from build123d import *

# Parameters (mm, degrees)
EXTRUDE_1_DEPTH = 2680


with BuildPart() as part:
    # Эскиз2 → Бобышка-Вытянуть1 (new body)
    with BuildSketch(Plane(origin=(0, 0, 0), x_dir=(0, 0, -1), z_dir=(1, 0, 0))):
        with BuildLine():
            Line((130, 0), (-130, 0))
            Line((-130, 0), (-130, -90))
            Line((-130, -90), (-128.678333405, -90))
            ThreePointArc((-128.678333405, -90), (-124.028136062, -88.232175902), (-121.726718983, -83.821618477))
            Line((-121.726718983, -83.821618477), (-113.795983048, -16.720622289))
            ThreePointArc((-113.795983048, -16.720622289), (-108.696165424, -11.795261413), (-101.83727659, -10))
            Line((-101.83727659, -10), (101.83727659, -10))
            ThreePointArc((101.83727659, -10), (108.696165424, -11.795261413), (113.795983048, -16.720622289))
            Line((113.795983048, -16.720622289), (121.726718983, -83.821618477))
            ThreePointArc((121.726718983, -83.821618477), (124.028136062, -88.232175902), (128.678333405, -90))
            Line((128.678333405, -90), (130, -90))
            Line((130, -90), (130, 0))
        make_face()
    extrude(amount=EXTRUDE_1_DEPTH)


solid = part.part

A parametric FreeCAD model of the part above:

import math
import FreeCAD as App
import Part
import Sketcher

V = App.Vector

doc = App.newDocument("Part")
body = doc.addObject("PartDesign::Body", "Body")

# Sketch on YZ plane
sketch1 = body.newObject("Sketcher::SketchObject", "Sketch")
sketch1.AttachmentSupport = (doc.getObject("YZ_Plane"), [""])
sketch1.MapMode = "FlatFace"
sketch1.addGeometry(Part.LineSegment(V(0, -130, 0), V(0, 130, 0)), False)
sketch1.addGeometry(Part.LineSegment(V(0, 130, 0), V(-90, 130, 0)), False)
sketch1.addGeometry(Part.LineSegment(V(-90, 130, 0), V(-90, 128.7, 0)), False)
sketch1.addGeometry(Part.ArcOfCircle(Part.Circle(V(-83, 128.7, 0), V(0, 0, 1), 7), math.radians(180), math.radians(263)), False)
sketch1.addGeometry(Part.LineSegment(V(-83.8, 121.7, 0), V(-16.7, 113.8, 0)), False)
sketch1.addGeometry(Part.ArcOfCircle(Part.Circle(V(-24, 101.8, 0), V(0, 0, 1), 14), math.radians(0), math.radians(59)), False)
sketch1.addGeometry(Part.LineSegment(V(-10, 101.8, 0), V(-10, -101.8, 0)), False)
sketch1.addGeometry(Part.ArcOfCircle(Part.Circle(V(-24, -101.8, 0), V(0, 0, 1), 14), math.radians(-59), math.radians(0)), False)
sketch1.addGeometry(Part.LineSegment(V(-16.7, -113.8, 0), V(-83.8, -121.7, 0)), False)
sketch1.addGeometry(Part.ArcOfCircle(Part.Circle(V(-83, -128.7, 0), V(0, 0, 1), 7), math.radians(97), math.radians(180)), False)
sketch1.addGeometry(Part.LineSegment(V(-90, -128.7, 0), V(-90, -130, 0)), False)
sketch1.addGeometry(Part.LineSegment(V(-90, -130, 0), V(0, -130, 0)), False)
sketch1.addConstraint(Sketcher.Constraint("Coincident", 0, 2, 1, 1))
sketch1.addConstraint(Sketcher.Constraint("Coincident", 1, 2, 2, 1))
sketch1.addConstraint(Sketcher.Constraint("Tangent", 2, 2, 3, 1))
sketch1.addConstraint(Sketcher.Constraint("Tangent", 3, 2, 4, 1))
sketch1.addConstraint(Sketcher.Constraint("Coincident", 4, 2, 5, 2))
sketch1.addConstraint(Sketcher.Constraint("Tangent", 5, 1, 6, 1))
sketch1.addConstraint(Sketcher.Constraint("Tangent", 6, 2, 7, 2))
sketch1.addConstraint(Sketcher.Constraint("Coincident", 7, 1, 8, 1))
sketch1.addConstraint(Sketcher.Constraint("Tangent", 8, 2, 9, 1))
sketch1.addConstraint(Sketcher.Constraint("Tangent", 9, 2, 10, 1))
sketch1.addConstraint(Sketcher.Constraint("Coincident", 10, 2, 11, 1))
sketch1.addConstraint(Sketcher.Constraint("Coincident", 11, 2, 0, 1))
sketch1.addConstraint(Sketcher.Constraint("Vertical", 0))
sketch1.addConstraint(Sketcher.Constraint("Horizontal", 1))
sketch1.addConstraint(Sketcher.Constraint("Vertical", 2))
sketch1.addConstraint(Sketcher.Constraint("Vertical", 6))
sketch1.addConstraint(Sketcher.Constraint("Vertical", 10))
sketch1.addConstraint(Sketcher.Constraint("Horizontal", 11))
sketch1.addConstraint(Sketcher.Constraint("Equal", 5, 7))
sketch1.addConstraint(Sketcher.Constraint("Equal", 3, 9))
sketch1.addConstraint(Sketcher.Constraint("Symmetric", 0, 2, 11, 2, -1, 1))
sketch1.addConstraint(Sketcher.Constraint("Symmetric", 3, 3, 9, 3, -1))
sketch1.addConstraint(Sketcher.Constraint("Symmetric", 4, 2, 7, 1, -1))
sketch1.addConstraint(Sketcher.Constraint("Radius", 3, 7.0))
sketch1.addConstraint(Sketcher.Constraint("Radius", 5, 14.0))
sketch1.addConstraint(Sketcher.Constraint("DistanceX", 1, 2, 1, 1, 90.0))
sketch1.addConstraint(Sketcher.Constraint("DistanceY", 0, 1, 0, 2, 260.0))
sketch1.addConstraint(Sketcher.Constraint("DistanceX", 5, 3, -1, 1, 24.0))
sketch1.addConstraint(Sketcher.Constraint("Distance", 4, 67.568042))
sketch1.addConstraint(Sketcher.Constraint("DistanceY", 2, 2, 2, 1, 1.321667))
sketch1.addConstraint(Sketcher.Constraint("DistanceY", 6, 2, 6, 1, 203.674553))
pad1 = body.newObject("PartDesign::Pad", "Pad")
pad1.Profile = sketch1
pad1.Length = 2680

doc.recompute()
